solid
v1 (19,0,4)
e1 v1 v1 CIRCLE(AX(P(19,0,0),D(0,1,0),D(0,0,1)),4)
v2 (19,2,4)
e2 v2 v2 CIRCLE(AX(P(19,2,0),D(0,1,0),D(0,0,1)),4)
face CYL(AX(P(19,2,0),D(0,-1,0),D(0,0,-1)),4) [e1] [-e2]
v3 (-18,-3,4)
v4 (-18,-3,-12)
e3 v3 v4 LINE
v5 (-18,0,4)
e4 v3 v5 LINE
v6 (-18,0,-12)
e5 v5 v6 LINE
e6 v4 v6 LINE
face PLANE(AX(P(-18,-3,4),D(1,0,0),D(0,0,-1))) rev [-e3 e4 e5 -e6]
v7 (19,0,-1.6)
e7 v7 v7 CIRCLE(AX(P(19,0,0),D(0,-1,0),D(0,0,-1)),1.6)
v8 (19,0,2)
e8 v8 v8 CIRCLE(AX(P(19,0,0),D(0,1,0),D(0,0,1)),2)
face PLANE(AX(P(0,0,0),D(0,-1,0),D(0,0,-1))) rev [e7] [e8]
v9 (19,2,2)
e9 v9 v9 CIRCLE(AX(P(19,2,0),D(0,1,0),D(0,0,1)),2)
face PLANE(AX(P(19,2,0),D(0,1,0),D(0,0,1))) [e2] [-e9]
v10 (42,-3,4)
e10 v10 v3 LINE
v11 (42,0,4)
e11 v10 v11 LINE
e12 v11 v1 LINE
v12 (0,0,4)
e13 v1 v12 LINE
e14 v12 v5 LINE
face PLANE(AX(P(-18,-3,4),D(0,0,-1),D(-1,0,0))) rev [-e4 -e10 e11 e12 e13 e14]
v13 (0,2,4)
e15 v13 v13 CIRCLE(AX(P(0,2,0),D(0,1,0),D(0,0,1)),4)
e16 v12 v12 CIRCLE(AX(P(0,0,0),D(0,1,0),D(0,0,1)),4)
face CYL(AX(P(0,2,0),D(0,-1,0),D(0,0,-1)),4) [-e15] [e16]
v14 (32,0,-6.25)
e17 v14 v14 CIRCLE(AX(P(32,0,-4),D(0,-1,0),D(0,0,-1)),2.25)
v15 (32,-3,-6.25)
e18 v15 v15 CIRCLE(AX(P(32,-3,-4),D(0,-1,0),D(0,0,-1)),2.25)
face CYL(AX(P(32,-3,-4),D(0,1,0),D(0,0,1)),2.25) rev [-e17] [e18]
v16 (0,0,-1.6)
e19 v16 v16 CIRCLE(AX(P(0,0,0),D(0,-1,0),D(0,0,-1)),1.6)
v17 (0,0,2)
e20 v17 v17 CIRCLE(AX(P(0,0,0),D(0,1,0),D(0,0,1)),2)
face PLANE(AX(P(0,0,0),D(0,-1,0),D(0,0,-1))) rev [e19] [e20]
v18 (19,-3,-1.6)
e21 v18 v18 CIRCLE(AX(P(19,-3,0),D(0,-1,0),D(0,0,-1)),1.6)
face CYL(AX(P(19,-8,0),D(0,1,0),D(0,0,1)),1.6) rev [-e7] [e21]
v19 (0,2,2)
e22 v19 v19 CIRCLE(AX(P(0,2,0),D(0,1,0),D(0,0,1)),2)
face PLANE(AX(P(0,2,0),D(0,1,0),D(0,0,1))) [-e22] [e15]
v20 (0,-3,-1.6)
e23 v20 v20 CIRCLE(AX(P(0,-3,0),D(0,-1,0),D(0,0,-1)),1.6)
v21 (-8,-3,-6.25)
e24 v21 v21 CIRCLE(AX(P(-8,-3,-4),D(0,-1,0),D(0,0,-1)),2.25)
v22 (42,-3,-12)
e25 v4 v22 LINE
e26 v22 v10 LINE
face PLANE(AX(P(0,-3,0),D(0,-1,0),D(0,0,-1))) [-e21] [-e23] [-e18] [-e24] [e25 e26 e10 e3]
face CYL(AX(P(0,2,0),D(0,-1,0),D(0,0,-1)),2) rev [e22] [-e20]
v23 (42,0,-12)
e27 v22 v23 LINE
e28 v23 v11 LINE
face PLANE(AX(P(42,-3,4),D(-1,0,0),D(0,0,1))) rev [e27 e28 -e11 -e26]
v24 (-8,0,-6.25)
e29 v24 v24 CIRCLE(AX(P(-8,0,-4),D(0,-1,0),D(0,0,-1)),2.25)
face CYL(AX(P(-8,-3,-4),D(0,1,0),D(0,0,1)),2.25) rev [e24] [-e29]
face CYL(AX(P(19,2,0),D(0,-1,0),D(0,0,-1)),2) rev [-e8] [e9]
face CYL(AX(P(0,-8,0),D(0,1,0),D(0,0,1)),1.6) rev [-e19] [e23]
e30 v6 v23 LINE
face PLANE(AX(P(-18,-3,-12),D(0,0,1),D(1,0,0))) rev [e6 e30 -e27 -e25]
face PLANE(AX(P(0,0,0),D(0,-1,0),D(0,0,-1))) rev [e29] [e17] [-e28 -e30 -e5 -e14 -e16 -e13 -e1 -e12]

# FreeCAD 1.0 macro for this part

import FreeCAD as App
import Part
import Sketcher
Q = App.Units.Quantity

doc = App.newDocument("Part")
body = doc.addObject("PartDesign::Body", "Body")

# Sketch on XZ plane
sketch1 = body.newObject("Sketcher::SketchObject", "Sketch")
sketch1.AttachmentSupport = (doc.getObject("XZ_Plane"), [""])
sketch1.MapMode = "FlatFace"
sketch1.addGeometry(Part.Circle(App.Vector(0, 0, 0), App.Vector(0, 0, 1), 4), False)
sketch1.addGeometry(Part.Circle(App.Vector(0, 0, 0), App.Vector(0, 0, 1), 2), False)
sketch1.addConstraint(Sketcher.Constraint("Coincident", 0, 3, -1, 1))
sketch1.addConstraint(Sketcher.Constraint("Coincident", 1, 3, -1, 1))
sketch1.addConstraint(Sketcher.Constraint("Diameter", 0, Q("8 mm")))
sketch1.addConstraint(Sketcher.Constraint("Diameter", 1, Q("4 mm")))
pad1 = body.newObject("PartDesign::Pad", "Pad")
pad1.Profile = sketch1
pad1.Length = 2
pad1.Reversed = True
body2 = doc.addObject("PartDesign::Body", "Body001")

# Sketch on XZ plane
sketch2 = body2.newObject("Sketcher::SketchObject", "Sketch001")
sketch2.AttachmentSupport = (doc.getObject("XZ_Plane001"), [""])
sketch2.MapMode = "FlatFace"
sketch2.addGeometry(Part.Circle(App.Vector(19, 0, 0), App.Vector(0, 0, 1), 4), False)
sketch2.addGeometry(Part.Circle(App.Vector(19, 0, 0), App.Vector(0, 0, 1), 2), False)
sketch2.addConstraint(Sketcher.Constraint("Coincident", 1, 3, 0, 3))
sketch2.addConstraint(Sketcher.Constraint("PointOnObject", 0, 3, -1))
sketch2.addConstraint(Sketcher.Constraint("Diameter", 0, Q("8 mm")))
sketch2.addConstraint(Sketcher.Constraint("Diameter", 1, Q("4 mm")))
sketch2.addConstraint(Sketcher.Constraint("DistanceX", -1, 1, 0, 3, Q("19 mm")))
pad2 = body2.newObject("PartDesign::Pad", "Pad001")
pad2.Profile = sketch2
pad2.Length = 2
pad2.Reversed = True
body.AllowCompound = True
doc.recompute()

boolean = body.newObject("PartDesign::Boolean", "Boolean")
boolean.Type = "Fuse"
boolean.addObjects([body2])

# Sketch on XZ plane
sketch3 = body.newObject("Sketcher::SketchObject", "Sketch002")
sketch3.AttachmentSupport = (doc.getObject("XZ_Plane"), [""])
sketch3.MapMode = "FlatFace"
sketch3.addGeometry(Part.LineSegment(App.Vector(-18, 4, 0), App.Vector(-18, -12, 0)), False)
sketch3.addGeometry(Part.LineSegment(App.Vector(-18, -12, 0), App.Vector(42, -12, 0)), False)
sketch3.addGeometry(Part.LineSegment(App.Vector(42, -12, 0), App.Vector(42, 4, 0)), False)
sketch3.addGeometry(Part.LineSegment(App.Vector(42, 4, 0), App.Vector(-18, 4, 0)), False)
sketch3.addGeometry(Part.Circle(App.Vector(-8, -4, 0), App.Vector(0, 0, 1), 2.2), False)
sketch3.addGeometry(Part.Circle(App.Vector(32, -4, 0), App.Vector(0, 0, 1), 2.2), False)
sketch3.addConstraint(Sketcher.Constraint("Coincident", 0, 2, 1, 1))
sketch3.addConstraint(Sketcher.Constraint("Coincident", 1, 2, 2, 1))
sketch3.addConstraint(Sketcher.Constraint("Coincident", 2, 2, 3, 1))
sketch3.addConstraint(Sketcher.Constraint("Coincident", 3, 2, 0, 1))
sketch3.addConstraint(Sketcher.Constraint("Vertical", 0))
sketch3.addConstraint(Sketcher.Constraint("Horizontal", 1))
sketch3.addConstraint(Sketcher.Constraint("Vertical", 2))
sketch3.addConstraint(Sketcher.Constraint("Horizontal", 3))
sketch3.addConstraint(Sketcher.Constraint("Equal", 4, 5))
sketch3.addConstraint(Sketcher.Constraint("Horizontal", 4, 3, 5, 3))
sketch3.addConstraint(Sketcher.Constraint("Diameter", 4, Q("4.5 mm")))
sketch3.addConstraint(Sketcher.Constraint("DistanceX", 1, 1, 1, 2, Q("60 mm")))
sketch3.addConstraint(Sketcher.Constraint("DistanceY", 0, 2, 0, 1, Q("16 mm")))
sketch3.addConstraint(Sketcher.Constraint("DistanceX", 4, 3, -1, 1, Q("8 mm")))
sketch3.addConstraint(Sketcher.Constraint("DistanceY", 4, 3, -1, 1, Q("4 mm")))
sketch3.addConstraint(Sketcher.Constraint("DistanceX", -1, 1, 5, 3, Q("32 mm")))
sketch3.addConstraint(Sketcher.Constraint("DistanceX", 0, 2, -1, 1, Q("18 mm")))
sketch3.addConstraint(Sketcher.Constraint("DistanceY", 0, 2, -1, 1, Q("12 mm")))
pad3 = body.newObject("PartDesign::Pad", "Pad002")
pad3.Profile = sketch3
pad3.Length = 3

# Sketch on XZ plane
sketch4 = body.newObject("Sketcher::SketchObject", "Sketch003")
sketch4.AttachmentSupport = (doc.getObject("XZ_Plane"), [""])
sketch4.MapMode = "FlatFace"
sketch4.AttachmentOffset = App.Placement(App.Vector(0, 0, -2), App.Rotation())
sketch4.addGeometry(Part.Circle(App.Vector(0, 0, 0), App.Vector(0, 0, 1), 1.6), False)
sketch4.addGeometry(Part.Circle(App.Vector(19, 0, 0), App.Vector(0, 0, 1), 1.6), False)
sketch4.addConstraint(Sketcher.Constraint("Coincident", 0, 3, -1, 1))
sketch4.addConstraint(Sketcher.Constraint("Equal", 0, 1))
sketch4.addConstraint(Sketcher.Constraint("PointOnObject", 1, 3, -1))
sketch4.addConstraint(Sketcher.Constraint("Diameter", 0, Q("3.2 mm")))
sketch4.addConstraint(Sketcher.Constraint("DistanceX", -1, 1, 1, 3, Q("19 mm")))
pocket1 = body.newObject("PartDesign::Pocket", "Pocket")
pocket1.Profile = sketch4
pocket1.Length = 10
pocket1.Reversed = True

doc.recompute()
